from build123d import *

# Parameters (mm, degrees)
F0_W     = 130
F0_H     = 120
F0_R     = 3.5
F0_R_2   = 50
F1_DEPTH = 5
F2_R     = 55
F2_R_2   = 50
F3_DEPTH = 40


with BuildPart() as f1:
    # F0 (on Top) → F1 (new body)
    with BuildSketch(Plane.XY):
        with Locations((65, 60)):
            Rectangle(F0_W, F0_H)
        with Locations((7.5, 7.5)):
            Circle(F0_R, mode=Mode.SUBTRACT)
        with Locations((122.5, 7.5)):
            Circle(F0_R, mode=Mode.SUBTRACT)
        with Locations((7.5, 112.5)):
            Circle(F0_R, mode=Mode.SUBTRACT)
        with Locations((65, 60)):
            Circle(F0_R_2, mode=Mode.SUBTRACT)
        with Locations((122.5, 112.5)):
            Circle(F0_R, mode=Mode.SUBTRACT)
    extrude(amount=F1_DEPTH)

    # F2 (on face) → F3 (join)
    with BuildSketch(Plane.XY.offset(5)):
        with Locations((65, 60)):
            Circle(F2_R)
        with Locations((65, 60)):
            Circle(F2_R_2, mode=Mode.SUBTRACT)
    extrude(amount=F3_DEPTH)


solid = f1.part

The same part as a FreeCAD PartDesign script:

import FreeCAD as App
import Part
import Sketcher
from FreeCAD import Vector

doc = App.newDocument("Part")
body = doc.addObject("PartDesign::Body", "Body")

sketch1 = doc.addObject("Sketcher::SketchObject", "Sketch")
body.addObject(sketch1)
sketch1.AttachmentSupport = (doc.XY_Plane, [""])
sketch1.MapMode = "FlatFace"
sketch1.addGeometry([
    Part.LineSegment(Vector(0, 120, 0), Vector(0, 0, 0)),
    Part.LineSegment(Vector(0, 0, 0), Vector(130, 0, 0)),
    Part.LineSegment(Vector(130, 0, 0), Vector(130, 120, 0)),
    Part.LineSegment(Vector(130, 120, 0), Vector(0, 120, 0)),
    Part.Circle(Vector(7.5, 7.5, 0), Vector(0, 0, 1), 3.5),
    Part.Circle(Vector(122.5, 7.5, 0), Vector(0, 0, 1), 3.5),
    Part.Circle(Vector(7.5, 112.5, 0), Vector(0, 0, 1), 3.5),
    Part.Circle(Vector(65, 60, 0), Vector(0, 0, 1), 50),
    Part.Circle(Vector(122.5, 112.5, 0), Vector(0, 0, 1), 3.5),
], False)
sketch1.addConstraint([
    Sketcher.Constraint("Coincident", 0, 2, 1, 1),
    Sketcher.Constraint("Coincident", 1, 2, 2, 1),
    Sketcher.Constraint("Coincident", 2, 2, 3, 1),
    Sketcher.Constraint("Coincident", 3, 2, 0, 1),
    Sketcher.Constraint("Vertical", 0),
    Sketcher.Constraint("Horizontal", 1),
    Sketcher.Constraint("Vertical", 2),
    Sketcher.Constraint("Horizontal", 3),
    Sketcher.Constraint("Coincident", 0, 2, -1, 1),
    Sketcher.Constraint("Equal", 4, 5),
    Sketcher.Constraint("Equal", 5, 6),
    Sketcher.Constraint("Equal", 6, 8),
    Sketcher.Constraint("Horizontal", 4, 3, 5, 3),
    Sketcher.Constraint("Horizontal", 6, 3, 8, 3),
    Sketcher.Constraint("Vertical", 4, 3, 6, 3),
    Sketcher.Constraint("Vertical", 5, 3, 8, 3),
    Sketcher.Constraint("Diameter", 4, 7.0),
    Sketcher.Constraint("Diameter", 7, 100.0),
    Sketcher.Constraint("DistanceX", 1, 1, 1, 2, 130.0),
    Sketcher.Constraint("DistanceY", 0, 2, 0, 1, 120.0),
    Sketcher.Constraint("DistanceX", -1, 1, 7, 3, 65.0),
    Sketcher.Constraint("DistanceY", -1, 1, 7, 3, 60.0),
    Sketcher.Constraint("DistanceX", 4, 3, 5, 3, 115.0),
    Sketcher.Constraint("DistanceY", 4, 3, 6, 3, 105.0),
    Sketcher.Constraint("DistanceX", -1, 1, 4, 3, 7.5),
    Sketcher.Constraint("DistanceY", -1, 1, 4, 3, 7.5),
])
pad1 = doc.addObject("PartDesign::Pad", "Pad")
body.addObject(pad1)
pad1.Profile = sketch1
pad1.Length = 5

sketch2 = doc.addObject("Sketcher::SketchObject", "Sketch001")
body.addObject(sketch2)
sketch2.AttachmentSupport = (doc.XY_Plane, [""])
sketch2.MapMode = "FlatFace"
sketch2.AttachmentOffset = App.Placement(Vector(0, 0, 5), App.Rotation())
sketch2.addGeometry([
    Part.Circle(Vector(65, 60, 0), Vector(0, 0, 1), 55),
    Part.Circle(Vector(65, 60, 0), Vector(0, 0, 1), 50),
], False)
sketch2.addConstraint([
    Sketcher.Constraint("Coincident", 1, 3, 0, 3),
    Sketcher.Constraint("Diameter", 0, 110.0),
    Sketcher.Constraint("Diameter", 1, 100.0),
    Sketcher.Constraint("DistanceX", -1, 1, 0, 3, 65.0),
    Sketcher.Constraint("DistanceY", -1, 1, 0, 3, 60.0),
])
pad2 = doc.addObject("PartDesign::Pad", "Pad001")
body.addObject(pad2)
pad2.Profile = sketch2
pad2.Length = 40

doc.recompute()
